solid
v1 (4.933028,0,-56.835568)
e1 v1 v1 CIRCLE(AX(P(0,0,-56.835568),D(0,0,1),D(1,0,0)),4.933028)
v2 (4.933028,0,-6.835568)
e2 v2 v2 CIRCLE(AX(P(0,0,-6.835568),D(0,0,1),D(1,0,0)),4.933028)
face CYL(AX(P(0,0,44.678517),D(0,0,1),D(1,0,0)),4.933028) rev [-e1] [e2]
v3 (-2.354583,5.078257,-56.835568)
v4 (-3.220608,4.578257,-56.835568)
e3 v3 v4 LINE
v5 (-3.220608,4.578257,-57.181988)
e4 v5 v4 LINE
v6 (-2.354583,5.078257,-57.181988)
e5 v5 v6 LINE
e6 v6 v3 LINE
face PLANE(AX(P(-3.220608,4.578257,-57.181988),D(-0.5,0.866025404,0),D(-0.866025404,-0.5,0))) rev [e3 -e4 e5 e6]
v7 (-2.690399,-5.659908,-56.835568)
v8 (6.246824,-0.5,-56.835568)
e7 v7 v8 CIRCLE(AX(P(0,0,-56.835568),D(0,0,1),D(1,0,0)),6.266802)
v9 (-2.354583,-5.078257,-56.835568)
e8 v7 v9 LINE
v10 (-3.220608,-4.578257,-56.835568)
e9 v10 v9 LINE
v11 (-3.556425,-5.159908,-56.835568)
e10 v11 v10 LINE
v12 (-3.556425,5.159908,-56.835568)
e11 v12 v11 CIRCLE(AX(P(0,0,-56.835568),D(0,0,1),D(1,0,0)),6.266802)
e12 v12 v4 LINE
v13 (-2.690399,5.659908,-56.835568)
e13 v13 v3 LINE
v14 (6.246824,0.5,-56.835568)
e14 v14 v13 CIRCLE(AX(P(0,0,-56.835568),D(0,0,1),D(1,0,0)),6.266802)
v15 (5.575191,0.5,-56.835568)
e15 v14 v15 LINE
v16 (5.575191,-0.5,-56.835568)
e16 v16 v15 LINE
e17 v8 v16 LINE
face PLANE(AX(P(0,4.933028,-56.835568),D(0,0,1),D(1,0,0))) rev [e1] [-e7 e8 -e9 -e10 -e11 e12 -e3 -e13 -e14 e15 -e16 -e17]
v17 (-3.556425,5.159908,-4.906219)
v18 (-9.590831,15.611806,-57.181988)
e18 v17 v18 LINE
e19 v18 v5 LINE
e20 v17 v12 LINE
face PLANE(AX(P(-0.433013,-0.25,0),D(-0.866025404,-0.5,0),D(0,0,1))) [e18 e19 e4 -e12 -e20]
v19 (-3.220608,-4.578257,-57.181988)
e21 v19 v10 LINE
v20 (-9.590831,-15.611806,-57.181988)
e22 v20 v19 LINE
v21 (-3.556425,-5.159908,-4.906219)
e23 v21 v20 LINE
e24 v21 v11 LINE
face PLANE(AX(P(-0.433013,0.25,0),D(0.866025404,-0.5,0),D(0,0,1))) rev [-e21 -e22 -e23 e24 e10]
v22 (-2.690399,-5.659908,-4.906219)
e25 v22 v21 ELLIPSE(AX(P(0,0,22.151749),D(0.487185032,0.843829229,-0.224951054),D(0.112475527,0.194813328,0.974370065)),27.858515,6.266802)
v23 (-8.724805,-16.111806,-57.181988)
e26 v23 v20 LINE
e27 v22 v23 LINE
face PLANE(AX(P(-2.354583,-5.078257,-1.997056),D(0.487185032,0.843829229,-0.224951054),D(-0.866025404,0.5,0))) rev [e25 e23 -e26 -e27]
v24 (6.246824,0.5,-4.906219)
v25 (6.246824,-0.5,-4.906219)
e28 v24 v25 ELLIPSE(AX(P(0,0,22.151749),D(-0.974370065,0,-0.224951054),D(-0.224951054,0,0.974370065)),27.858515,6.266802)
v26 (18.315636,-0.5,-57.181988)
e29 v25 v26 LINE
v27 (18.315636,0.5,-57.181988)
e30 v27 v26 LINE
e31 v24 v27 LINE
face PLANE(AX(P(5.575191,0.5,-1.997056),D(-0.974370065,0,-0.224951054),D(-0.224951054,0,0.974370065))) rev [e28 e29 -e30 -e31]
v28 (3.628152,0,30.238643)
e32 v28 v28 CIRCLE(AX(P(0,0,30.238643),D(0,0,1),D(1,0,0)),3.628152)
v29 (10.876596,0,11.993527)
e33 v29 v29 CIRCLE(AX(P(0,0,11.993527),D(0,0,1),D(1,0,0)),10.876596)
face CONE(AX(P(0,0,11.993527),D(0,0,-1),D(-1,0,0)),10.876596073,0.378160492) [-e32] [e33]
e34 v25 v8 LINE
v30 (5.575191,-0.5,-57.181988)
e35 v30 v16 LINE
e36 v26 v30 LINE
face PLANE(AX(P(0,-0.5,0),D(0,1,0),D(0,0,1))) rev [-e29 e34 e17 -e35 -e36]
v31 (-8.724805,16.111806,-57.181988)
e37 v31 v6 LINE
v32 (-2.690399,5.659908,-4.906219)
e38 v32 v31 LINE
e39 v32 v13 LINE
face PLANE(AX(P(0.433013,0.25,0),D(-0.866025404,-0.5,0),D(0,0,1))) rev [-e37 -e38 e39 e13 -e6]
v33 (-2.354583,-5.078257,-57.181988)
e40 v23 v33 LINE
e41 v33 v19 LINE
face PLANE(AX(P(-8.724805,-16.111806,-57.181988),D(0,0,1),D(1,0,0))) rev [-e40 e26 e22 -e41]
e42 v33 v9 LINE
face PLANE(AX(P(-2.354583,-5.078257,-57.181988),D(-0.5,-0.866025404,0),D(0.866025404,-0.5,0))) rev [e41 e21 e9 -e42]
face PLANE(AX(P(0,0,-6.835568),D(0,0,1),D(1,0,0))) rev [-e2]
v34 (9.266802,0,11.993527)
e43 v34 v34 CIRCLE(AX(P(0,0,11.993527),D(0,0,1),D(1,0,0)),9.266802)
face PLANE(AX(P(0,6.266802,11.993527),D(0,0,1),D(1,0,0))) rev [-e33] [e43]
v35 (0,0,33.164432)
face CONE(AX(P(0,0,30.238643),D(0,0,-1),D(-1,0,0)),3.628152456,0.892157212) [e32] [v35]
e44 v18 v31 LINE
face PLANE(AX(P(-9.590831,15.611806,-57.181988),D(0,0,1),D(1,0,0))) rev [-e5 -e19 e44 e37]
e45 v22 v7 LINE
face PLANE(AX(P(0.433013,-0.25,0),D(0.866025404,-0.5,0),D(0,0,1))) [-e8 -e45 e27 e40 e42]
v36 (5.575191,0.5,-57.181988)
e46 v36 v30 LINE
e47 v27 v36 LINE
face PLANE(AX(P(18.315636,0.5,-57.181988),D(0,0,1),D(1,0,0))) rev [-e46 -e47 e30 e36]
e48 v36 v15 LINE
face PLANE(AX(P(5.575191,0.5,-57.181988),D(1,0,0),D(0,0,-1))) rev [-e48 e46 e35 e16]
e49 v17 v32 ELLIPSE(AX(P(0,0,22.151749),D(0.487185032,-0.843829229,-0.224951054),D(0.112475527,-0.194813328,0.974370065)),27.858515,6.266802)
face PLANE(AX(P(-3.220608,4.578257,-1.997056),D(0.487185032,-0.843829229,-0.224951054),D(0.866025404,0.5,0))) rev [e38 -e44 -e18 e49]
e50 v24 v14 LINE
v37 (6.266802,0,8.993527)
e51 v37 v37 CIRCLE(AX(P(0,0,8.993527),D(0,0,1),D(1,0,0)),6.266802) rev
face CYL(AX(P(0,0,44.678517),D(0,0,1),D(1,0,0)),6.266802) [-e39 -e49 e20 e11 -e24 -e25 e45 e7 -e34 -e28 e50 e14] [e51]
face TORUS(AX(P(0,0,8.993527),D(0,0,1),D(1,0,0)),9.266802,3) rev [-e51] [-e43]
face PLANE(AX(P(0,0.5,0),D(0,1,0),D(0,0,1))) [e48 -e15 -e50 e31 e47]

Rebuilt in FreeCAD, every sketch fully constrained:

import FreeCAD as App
import Part
import Sketcher

V = App.Vector
Q = App.Units.Quantity


def edges_at(feature, points):
    """Names of the edges that pass closest to the given points."""
    edges = feature.Shape.Edges
    near = lambda p: min(range(len(edges)), key=lambda i: edges[i].distToShape(Part.Vertex(*p))[0])
    return sorted({f"Edge{near(p) + 1}" for p in points})


def add_polygon(sketch, points):
    """Adds a closed chain of lines whose ends are joined by coincident constraints."""
    first, n = sketch.GeometryCount, len(points)
    for a, b in zip(points, points[1:] + points[:1]):
        sketch.addGeometry(Part.LineSegment(App.Vector(*a, 0), App.Vector(*b, 0)), False)
    for i in range(n):
        sketch.addConstraint(Sketcher.Constraint("Coincident", first + i, 2, first + (i + 1) % n, 1))

doc = App.newDocument("Part")
body = doc.addObject("PartDesign::Body", "Body")

sketch1 = doc.addObject("Sketcher::SketchObject", "Sketch")
body.addObject(sketch1)
sketch1.AttachmentSupport = (doc.YZ_Plane, [""])
sketch1.MapMode = "FlatFace"
add_polygon(sketch1, [(0, -6.835568), (4.933028, -6.835568), (4.933028, -56.835568), (6.266802, -56.835568), (6.266802, 11.993527), (10.876596, 11.993527), (3.628152, 30.238643), (0, 33.164432)])
sketch1.addConstraint([
    Sketcher.Constraint("Horizontal", 0),
    Sketcher.Constraint("Vertical", 1),
    Sketcher.Constraint("Horizontal", 2),
    Sketcher.Constraint("Vertical", 3),
    Sketcher.Constraint("Horizontal", 4),
    Sketcher.Constraint("Vertical", 7),
    Sketcher.Constraint("PointOnObject", 6, 2, -2),
    Sketcher.Constraint("DistanceY", 1, 2, 1, 1, 50.0),
    Sketcher.Constraint("DistanceY", 7, 2, 7, 1, 40.0),
    Sketcher.Constraint("DistanceX", 0, 1, 0, 2, 4.933028),
    Sketcher.Constraint("DistanceX", 2, 1, 2, 2, 1.333774),
    Sketcher.Constraint("DistanceX", 4, 1, 4, 2, 4.609794),
    Sketcher.Constraint("DistanceY", 3, 1, 3, 2, 68.829095),
    Sketcher.Constraint("DistanceX", 5, 2, 3, 2, 2.63865),
    Sketcher.Constraint("DistanceY", 0, 2, 5, 2, 37.074211),
    Sketcher.Constraint("DistanceY", 0, 2, -1, 1, 6.835568),
])
revolution = doc.addObject("PartDesign::Revolution", "Revolution")
body.addObject(revolution)
revolution.Profile = sketch1
revolution.ReferenceAxis = (sketch1, ["V_Axis"])
revolution.Angle = 360
doc.recompute()

fillet = doc.addObject("PartDesign::Fillet", "Fillet")
body.addObject(fillet)
fillet.Base = (revolution, edges_at(revolution, [(0, -6.267, 11.994)]))
fillet.Radius = 3

sketch2 = doc.addObject("Sketcher::SketchObject", "Sketch001")
body.addObject(sketch2)
sketch2.AttachmentSupport = (doc.XZ_Plane, [""])
sketch2.MapMode = "FlatFace"
add_polygon(sketch2, [(5.575191, -1.997056), (18.315636, -57.181988), (5.575191, -57.181988)])
sketch2.addConstraint([
    Sketcher.Constraint("Horizontal", 1),
    Sketcher.Constraint("Vertical", 2),
    Sketcher.Constraint("Angle", 0, Q("-77 deg")),
    Sketcher.Constraint("DistanceY", 2, 1, 2, 2, 55.184931),
    Sketcher.Constraint("DistanceX", -1, 1, 1, 2, 5.575191),
    Sketcher.Constraint("DistanceY", 0, 2, -1, 1, 57.181988),
])
pad1 = doc.addObject("PartDesign::Pad", "Pad")
body.addObject(pad1)
pad1.Profile = sketch2
pad1.Length = 1
pad1.Midplane = True
doc.recompute()

polarpattern = doc.addObject("PartDesign::PolarPattern", "PolarPattern")
body.addObject(polarpattern)
polarpattern.Originals = [pad1]
polarpattern.Axis = (doc.Z_Axis, [""])
polarpattern.Angle = 360
polarpattern.Occurrences = 3
body.Tip = polarpattern

doc.recompute()
